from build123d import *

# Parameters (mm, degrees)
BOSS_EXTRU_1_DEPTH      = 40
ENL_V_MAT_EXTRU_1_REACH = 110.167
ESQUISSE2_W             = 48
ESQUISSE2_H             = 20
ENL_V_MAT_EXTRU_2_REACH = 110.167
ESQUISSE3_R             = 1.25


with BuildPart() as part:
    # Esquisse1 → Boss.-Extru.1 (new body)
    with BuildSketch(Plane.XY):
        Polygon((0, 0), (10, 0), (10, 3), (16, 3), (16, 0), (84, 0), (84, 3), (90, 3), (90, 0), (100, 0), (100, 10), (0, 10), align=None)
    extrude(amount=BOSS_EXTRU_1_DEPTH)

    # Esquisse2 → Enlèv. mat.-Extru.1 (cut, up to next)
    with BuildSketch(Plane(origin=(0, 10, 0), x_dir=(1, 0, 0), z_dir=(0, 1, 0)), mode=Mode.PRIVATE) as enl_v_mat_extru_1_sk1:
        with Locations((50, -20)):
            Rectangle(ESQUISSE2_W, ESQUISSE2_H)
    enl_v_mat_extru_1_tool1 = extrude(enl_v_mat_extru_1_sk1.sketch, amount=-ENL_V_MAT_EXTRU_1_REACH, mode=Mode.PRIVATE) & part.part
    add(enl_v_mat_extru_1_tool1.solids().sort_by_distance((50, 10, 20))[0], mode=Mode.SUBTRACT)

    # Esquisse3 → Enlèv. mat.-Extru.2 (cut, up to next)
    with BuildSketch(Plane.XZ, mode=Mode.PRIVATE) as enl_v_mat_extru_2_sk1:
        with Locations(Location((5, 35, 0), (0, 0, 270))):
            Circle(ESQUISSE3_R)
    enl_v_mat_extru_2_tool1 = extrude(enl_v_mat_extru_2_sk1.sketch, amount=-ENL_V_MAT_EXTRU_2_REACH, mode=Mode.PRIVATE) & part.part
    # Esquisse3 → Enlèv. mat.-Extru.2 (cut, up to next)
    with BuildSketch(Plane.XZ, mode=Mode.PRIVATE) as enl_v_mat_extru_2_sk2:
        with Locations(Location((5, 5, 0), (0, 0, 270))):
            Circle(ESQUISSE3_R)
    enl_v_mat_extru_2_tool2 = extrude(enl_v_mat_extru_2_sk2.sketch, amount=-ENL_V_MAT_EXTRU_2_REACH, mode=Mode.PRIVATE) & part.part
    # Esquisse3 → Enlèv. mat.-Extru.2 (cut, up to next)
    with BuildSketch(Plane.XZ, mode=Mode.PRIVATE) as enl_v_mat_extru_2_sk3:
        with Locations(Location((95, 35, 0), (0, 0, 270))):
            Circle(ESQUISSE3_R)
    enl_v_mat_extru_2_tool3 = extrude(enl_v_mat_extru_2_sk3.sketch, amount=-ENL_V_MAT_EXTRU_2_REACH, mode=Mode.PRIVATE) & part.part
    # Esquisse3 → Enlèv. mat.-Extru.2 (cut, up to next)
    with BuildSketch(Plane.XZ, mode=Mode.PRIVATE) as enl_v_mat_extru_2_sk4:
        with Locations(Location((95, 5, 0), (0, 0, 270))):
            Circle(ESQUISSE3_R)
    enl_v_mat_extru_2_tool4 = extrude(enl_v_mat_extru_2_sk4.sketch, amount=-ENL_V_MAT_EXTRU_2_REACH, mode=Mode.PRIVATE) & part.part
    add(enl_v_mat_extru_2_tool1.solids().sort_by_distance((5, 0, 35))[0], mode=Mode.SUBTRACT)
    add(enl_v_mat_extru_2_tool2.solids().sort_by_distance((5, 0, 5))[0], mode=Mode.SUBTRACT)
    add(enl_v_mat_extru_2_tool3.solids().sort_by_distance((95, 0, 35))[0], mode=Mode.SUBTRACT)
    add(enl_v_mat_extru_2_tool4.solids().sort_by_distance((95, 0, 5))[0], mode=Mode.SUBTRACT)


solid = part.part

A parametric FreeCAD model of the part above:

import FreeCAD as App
import Part
import Sketcher
from FreeCAD import Vector

doc = App.newDocument("Part")
body = doc.addObject("PartDesign::Body", "Body")

sketch1 = doc.addObject("Sketcher::SketchObject", "Sketch")
body.addObject(sketch1)
sketch1.AttachmentSupport = (doc.XY_Plane, [""])
sketch1.MapMode = "FlatFace"
sketch1.addGeometry([
    Part.LineSegment(Vector(0, 0, 0), Vector(10, 0, 0)),
    Part.LineSegment(Vector(10, 0, 0), Vector(10, 3, 0)),
    Part.LineSegment(Vector(10, 3, 0), Vector(16, 3, 0)),
    Part.LineSegment(Vector(16, 3, 0), Vector(16, 0, 0)),
    Part.LineSegment(Vector(16, 0, 0), Vector(84, 0, 0)),
    Part.LineSegment(Vector(84, 0, 0), Vector(84, 3, 0)),
    Part.LineSegment(Vector(84, 3, 0), Vector(90, 3, 0)),
    Part.LineSegment(Vector(90, 3, 0), Vector(90, 0, 0)),
    Part.LineSegment(Vector(90, 0, 0), Vector(100, 0, 0)),
    Part.LineSegment(Vector(100, 0, 0), Vector(100, 10, 0)),
    Part.LineSegment(Vector(100, 10, 0), Vector(0, 10, 0)),
    Part.LineSegment(Vector(0, 10, 0), Vector(0, 0, 0)),
], False)
sketch1.addConstraint([
    Sketcher.Constraint("Coincident", 0, 2, 1, 1),
    Sketcher.Constraint("Coincident", 1, 2, 2, 1),
    Sketcher.Constraint("Coincident", 2, 2, 3, 1),
    Sketcher.Constraint("Coincident", 3, 2, 4, 1),
    Sketcher.Constraint("Coincident", 4, 2, 5, 1),
    Sketcher.Constraint("Coincident", 5, 2, 6, 1),
    Sketcher.Constraint("Coincident", 6, 2, 7, 1),
    Sketcher.Constraint("Coincident", 7, 2, 8, 1),
    Sketcher.Constraint("Coincident", 8, 2, 9, 1),
    Sketcher.Constraint("Coincident", 9, 2, 10, 1),
    Sketcher.Constraint("Coincident", 10, 2, 11, 1),
    Sketcher.Constraint("Coincident", 11, 2, 0, 1),
    Sketcher.Constraint("Horizontal", 0),
    Sketcher.Constraint("Vertical", 1),
    Sketcher.Constraint("Horizontal", 2),
    Sketcher.Constraint("Vertical", 3),
    Sketcher.Constraint("Horizontal", 4),
    Sketcher.Constraint("Vertical", 5),
    Sketcher.Constraint("Horizontal", 6),
    Sketcher.Constraint("Vertical", 7),
    Sketcher.Constraint("Horizontal", 8),
    Sketcher.Constraint("Vertical", 9),
    Sketcher.Constraint("Horizontal", 10),
    Sketcher.Constraint("Vertical", 11),
    Sketcher.Constraint("Coincident", 11, 2, -1, 1),
    Sketcher.Constraint("PointOnObject", 3, 2, -1),
    Sketcher.Constraint("PointOnObject", 7, 2, -1),
    Sketcher.Constraint("Horizontal", 2, 2, 5, 2),
    Sketcher.Constraint("Equal", 2, 6),
    Sketcher.Constraint("Equal", 0, 8),
    Sketcher.Constraint("Equal", 8, 9),
    Sketcher.Constraint("DistanceX", 0, 1, 0, 2, 10.0),
    Sketcher.Constraint("DistanceX", 2, 1, 2, 2, 6.0),
    Sketcher.Constraint("DistanceX", 4, 1, 4, 2, 68.0),
    Sketcher.Constraint("DistanceY", 1, 1, 1, 2, 3.0),
])
pad1 = doc.addObject("PartDesign::Pad", "Pad")
body.addObject(pad1)
pad1.Profile = sketch1
pad1.Length = 40

sketch2 = doc.addObject("Sketcher::SketchObject", "Sketch001")
body.addObject(sketch2)
sketch2.AttachmentSupport = (doc.XZ_Plane, [""])
sketch2.MapMode = "FlatFace"
sketch2.AttachmentOffset = App.Placement(Vector(0, 0, -10), App.Rotation())
sketch2.addGeometry([
    Part.LineSegment(Vector(26, 10, 0), Vector(26, 30, 0)),
    Part.LineSegment(Vector(26, 30, 0), Vector(74, 30, 0)),
    Part.LineSegment(Vector(74, 30, 0), Vector(74, 10, 0)),
    Part.LineSegment(Vector(74, 10, 0), Vector(26, 10, 0)),
], False)
sketch2.addConstraint([
    Sketcher.Constraint("Coincident", 0, 2, 1, 1),
    Sketcher.Constraint("Coincident", 1, 2, 2, 1),
    Sketcher.Constraint("Coincident", 2, 2, 3, 1),
    Sketcher.Constraint("Coincident", 3, 2, 0, 1),
    Sketcher.Constraint("Vertical", 0),
    Sketcher.Constraint("Horizontal", 1),
    Sketcher.Constraint("Vertical", 2),
    Sketcher.Constraint("Horizontal", 3),
    Sketcher.Constraint("DistanceX", 1, 1, 1, 2, 48.0),
    Sketcher.Constraint("DistanceY", 0, 1, 0, 2, 20.0),
    Sketcher.Constraint("DistanceX", -1, 1, 0, 2, 26.0),
    Sketcher.Constraint("DistanceY", -1, 1, 0, 2, 30.0),
])
pocket1 = doc.addObject("PartDesign::Pocket", "Pocket")
body.addObject(pocket1)
pocket1.Profile = sketch2
pocket1.Type = "UpToFirst"
pocket1.Reversed = True

sketch3 = doc.addObject("Sketcher::SketchObject", "Sketch002")
body.addObject(sketch3)
sketch3.AttachmentSupport = (doc.XZ_Plane, [""])
sketch3.MapMode = "FlatFace"
sketch3.addGeometry(Part.Circle(Vector(5, 35, 0), Vector(0, 0, 1), 1.2), False)
sketch3.addConstraint([
    Sketcher.Constraint("Diameter", 0, 2.5),
    Sketcher.Constraint("DistanceX", -1, 1, 0, 3, 5.0),
    Sketcher.Constraint("DistanceY", -1, 1, 0, 3, 35.0),
])
pocket2 = doc.addObject("PartDesign::Pocket", "Pocket001")
body.addObject(pocket2)
pocket2.Profile = sketch3
pocket2.Type = "UpToFirst"

sketch4 = doc.addObject("Sketcher::SketchObject", "Sketch003")
body.addObject(sketch4)
sketch4.AttachmentSupport = (doc.XZ_Plane, [""])
sketch4.MapMode = "FlatFace"
sketch4.addGeometry(Part.Circle(Vector(5, 5, 0), Vector(0, 0, 1), 1.2), False)
sketch4.addConstraint([
    Sketcher.Constraint("Diameter", 0, 2.5),
    Sketcher.Constraint("DistanceX", -1, 1, 0, 3, 5.0),
    Sketcher.Constraint("DistanceY", -1, 1, 0, 3, 5.0),
])
pocket3 = doc.addObject("PartDesign::Pocket", "Pocket002")
body.addObject(pocket3)
pocket3.Profile = sketch4
pocket3.Type = "UpToFirst"

sketch5 = doc.addObject("Sketcher::SketchObject", "Sketch004")
body.addObject(sketch5)
sketch5.AttachmentSupport = (doc.XZ_Plane, [""])
sketch5.MapMode = "FlatFace"
sketch5.addGeometry(Part.Circle(Vector(95, 35, 0), Vector(0, 0, 1), 1.2), False)
sketch5.addConstraint([
    Sketcher.Constraint("Diameter", 0, 2.5),
    Sketcher.Constraint("DistanceX", -1, 1, 0, 3, 95.0),
    Sketcher.Constraint("DistanceY", -1, 1, 0, 3, 35.0),
])
pocket4 = doc.addObject("PartDesign::Pocket", "Pocket003")
body.addObject(pocket4)
pocket4.Profile = sketch5
pocket4.Type = "UpToFirst"

sketch6 = doc.addObject("Sketcher::SketchObject", "Sketch005")
body.addObject(sketch6)
sketch6.AttachmentSupport = (doc.XZ_Plane, [""])
sketch6.MapMode = "FlatFace"
sketch6.addGeometry(Part.Circle(Vector(95, 5, 0), Vector(0, 0, 1), 1.2), False)
sketch6.addConstraint([
    Sketcher.Constraint("Diameter", 0, 2.5),
    Sketcher.Constraint("DistanceX", -1, 1, 0, 3, 95.0),
    Sketcher.Constraint("DistanceY", -1, 1, 0, 3, 5.0),
])
pocket5 = doc.addObject("PartDesign::Pocket", "Pocket004")
body.addObject(pocket5)
pocket5.Profile = sketch6
pocket5.Type = "UpToFirst"

doc.recompute()
